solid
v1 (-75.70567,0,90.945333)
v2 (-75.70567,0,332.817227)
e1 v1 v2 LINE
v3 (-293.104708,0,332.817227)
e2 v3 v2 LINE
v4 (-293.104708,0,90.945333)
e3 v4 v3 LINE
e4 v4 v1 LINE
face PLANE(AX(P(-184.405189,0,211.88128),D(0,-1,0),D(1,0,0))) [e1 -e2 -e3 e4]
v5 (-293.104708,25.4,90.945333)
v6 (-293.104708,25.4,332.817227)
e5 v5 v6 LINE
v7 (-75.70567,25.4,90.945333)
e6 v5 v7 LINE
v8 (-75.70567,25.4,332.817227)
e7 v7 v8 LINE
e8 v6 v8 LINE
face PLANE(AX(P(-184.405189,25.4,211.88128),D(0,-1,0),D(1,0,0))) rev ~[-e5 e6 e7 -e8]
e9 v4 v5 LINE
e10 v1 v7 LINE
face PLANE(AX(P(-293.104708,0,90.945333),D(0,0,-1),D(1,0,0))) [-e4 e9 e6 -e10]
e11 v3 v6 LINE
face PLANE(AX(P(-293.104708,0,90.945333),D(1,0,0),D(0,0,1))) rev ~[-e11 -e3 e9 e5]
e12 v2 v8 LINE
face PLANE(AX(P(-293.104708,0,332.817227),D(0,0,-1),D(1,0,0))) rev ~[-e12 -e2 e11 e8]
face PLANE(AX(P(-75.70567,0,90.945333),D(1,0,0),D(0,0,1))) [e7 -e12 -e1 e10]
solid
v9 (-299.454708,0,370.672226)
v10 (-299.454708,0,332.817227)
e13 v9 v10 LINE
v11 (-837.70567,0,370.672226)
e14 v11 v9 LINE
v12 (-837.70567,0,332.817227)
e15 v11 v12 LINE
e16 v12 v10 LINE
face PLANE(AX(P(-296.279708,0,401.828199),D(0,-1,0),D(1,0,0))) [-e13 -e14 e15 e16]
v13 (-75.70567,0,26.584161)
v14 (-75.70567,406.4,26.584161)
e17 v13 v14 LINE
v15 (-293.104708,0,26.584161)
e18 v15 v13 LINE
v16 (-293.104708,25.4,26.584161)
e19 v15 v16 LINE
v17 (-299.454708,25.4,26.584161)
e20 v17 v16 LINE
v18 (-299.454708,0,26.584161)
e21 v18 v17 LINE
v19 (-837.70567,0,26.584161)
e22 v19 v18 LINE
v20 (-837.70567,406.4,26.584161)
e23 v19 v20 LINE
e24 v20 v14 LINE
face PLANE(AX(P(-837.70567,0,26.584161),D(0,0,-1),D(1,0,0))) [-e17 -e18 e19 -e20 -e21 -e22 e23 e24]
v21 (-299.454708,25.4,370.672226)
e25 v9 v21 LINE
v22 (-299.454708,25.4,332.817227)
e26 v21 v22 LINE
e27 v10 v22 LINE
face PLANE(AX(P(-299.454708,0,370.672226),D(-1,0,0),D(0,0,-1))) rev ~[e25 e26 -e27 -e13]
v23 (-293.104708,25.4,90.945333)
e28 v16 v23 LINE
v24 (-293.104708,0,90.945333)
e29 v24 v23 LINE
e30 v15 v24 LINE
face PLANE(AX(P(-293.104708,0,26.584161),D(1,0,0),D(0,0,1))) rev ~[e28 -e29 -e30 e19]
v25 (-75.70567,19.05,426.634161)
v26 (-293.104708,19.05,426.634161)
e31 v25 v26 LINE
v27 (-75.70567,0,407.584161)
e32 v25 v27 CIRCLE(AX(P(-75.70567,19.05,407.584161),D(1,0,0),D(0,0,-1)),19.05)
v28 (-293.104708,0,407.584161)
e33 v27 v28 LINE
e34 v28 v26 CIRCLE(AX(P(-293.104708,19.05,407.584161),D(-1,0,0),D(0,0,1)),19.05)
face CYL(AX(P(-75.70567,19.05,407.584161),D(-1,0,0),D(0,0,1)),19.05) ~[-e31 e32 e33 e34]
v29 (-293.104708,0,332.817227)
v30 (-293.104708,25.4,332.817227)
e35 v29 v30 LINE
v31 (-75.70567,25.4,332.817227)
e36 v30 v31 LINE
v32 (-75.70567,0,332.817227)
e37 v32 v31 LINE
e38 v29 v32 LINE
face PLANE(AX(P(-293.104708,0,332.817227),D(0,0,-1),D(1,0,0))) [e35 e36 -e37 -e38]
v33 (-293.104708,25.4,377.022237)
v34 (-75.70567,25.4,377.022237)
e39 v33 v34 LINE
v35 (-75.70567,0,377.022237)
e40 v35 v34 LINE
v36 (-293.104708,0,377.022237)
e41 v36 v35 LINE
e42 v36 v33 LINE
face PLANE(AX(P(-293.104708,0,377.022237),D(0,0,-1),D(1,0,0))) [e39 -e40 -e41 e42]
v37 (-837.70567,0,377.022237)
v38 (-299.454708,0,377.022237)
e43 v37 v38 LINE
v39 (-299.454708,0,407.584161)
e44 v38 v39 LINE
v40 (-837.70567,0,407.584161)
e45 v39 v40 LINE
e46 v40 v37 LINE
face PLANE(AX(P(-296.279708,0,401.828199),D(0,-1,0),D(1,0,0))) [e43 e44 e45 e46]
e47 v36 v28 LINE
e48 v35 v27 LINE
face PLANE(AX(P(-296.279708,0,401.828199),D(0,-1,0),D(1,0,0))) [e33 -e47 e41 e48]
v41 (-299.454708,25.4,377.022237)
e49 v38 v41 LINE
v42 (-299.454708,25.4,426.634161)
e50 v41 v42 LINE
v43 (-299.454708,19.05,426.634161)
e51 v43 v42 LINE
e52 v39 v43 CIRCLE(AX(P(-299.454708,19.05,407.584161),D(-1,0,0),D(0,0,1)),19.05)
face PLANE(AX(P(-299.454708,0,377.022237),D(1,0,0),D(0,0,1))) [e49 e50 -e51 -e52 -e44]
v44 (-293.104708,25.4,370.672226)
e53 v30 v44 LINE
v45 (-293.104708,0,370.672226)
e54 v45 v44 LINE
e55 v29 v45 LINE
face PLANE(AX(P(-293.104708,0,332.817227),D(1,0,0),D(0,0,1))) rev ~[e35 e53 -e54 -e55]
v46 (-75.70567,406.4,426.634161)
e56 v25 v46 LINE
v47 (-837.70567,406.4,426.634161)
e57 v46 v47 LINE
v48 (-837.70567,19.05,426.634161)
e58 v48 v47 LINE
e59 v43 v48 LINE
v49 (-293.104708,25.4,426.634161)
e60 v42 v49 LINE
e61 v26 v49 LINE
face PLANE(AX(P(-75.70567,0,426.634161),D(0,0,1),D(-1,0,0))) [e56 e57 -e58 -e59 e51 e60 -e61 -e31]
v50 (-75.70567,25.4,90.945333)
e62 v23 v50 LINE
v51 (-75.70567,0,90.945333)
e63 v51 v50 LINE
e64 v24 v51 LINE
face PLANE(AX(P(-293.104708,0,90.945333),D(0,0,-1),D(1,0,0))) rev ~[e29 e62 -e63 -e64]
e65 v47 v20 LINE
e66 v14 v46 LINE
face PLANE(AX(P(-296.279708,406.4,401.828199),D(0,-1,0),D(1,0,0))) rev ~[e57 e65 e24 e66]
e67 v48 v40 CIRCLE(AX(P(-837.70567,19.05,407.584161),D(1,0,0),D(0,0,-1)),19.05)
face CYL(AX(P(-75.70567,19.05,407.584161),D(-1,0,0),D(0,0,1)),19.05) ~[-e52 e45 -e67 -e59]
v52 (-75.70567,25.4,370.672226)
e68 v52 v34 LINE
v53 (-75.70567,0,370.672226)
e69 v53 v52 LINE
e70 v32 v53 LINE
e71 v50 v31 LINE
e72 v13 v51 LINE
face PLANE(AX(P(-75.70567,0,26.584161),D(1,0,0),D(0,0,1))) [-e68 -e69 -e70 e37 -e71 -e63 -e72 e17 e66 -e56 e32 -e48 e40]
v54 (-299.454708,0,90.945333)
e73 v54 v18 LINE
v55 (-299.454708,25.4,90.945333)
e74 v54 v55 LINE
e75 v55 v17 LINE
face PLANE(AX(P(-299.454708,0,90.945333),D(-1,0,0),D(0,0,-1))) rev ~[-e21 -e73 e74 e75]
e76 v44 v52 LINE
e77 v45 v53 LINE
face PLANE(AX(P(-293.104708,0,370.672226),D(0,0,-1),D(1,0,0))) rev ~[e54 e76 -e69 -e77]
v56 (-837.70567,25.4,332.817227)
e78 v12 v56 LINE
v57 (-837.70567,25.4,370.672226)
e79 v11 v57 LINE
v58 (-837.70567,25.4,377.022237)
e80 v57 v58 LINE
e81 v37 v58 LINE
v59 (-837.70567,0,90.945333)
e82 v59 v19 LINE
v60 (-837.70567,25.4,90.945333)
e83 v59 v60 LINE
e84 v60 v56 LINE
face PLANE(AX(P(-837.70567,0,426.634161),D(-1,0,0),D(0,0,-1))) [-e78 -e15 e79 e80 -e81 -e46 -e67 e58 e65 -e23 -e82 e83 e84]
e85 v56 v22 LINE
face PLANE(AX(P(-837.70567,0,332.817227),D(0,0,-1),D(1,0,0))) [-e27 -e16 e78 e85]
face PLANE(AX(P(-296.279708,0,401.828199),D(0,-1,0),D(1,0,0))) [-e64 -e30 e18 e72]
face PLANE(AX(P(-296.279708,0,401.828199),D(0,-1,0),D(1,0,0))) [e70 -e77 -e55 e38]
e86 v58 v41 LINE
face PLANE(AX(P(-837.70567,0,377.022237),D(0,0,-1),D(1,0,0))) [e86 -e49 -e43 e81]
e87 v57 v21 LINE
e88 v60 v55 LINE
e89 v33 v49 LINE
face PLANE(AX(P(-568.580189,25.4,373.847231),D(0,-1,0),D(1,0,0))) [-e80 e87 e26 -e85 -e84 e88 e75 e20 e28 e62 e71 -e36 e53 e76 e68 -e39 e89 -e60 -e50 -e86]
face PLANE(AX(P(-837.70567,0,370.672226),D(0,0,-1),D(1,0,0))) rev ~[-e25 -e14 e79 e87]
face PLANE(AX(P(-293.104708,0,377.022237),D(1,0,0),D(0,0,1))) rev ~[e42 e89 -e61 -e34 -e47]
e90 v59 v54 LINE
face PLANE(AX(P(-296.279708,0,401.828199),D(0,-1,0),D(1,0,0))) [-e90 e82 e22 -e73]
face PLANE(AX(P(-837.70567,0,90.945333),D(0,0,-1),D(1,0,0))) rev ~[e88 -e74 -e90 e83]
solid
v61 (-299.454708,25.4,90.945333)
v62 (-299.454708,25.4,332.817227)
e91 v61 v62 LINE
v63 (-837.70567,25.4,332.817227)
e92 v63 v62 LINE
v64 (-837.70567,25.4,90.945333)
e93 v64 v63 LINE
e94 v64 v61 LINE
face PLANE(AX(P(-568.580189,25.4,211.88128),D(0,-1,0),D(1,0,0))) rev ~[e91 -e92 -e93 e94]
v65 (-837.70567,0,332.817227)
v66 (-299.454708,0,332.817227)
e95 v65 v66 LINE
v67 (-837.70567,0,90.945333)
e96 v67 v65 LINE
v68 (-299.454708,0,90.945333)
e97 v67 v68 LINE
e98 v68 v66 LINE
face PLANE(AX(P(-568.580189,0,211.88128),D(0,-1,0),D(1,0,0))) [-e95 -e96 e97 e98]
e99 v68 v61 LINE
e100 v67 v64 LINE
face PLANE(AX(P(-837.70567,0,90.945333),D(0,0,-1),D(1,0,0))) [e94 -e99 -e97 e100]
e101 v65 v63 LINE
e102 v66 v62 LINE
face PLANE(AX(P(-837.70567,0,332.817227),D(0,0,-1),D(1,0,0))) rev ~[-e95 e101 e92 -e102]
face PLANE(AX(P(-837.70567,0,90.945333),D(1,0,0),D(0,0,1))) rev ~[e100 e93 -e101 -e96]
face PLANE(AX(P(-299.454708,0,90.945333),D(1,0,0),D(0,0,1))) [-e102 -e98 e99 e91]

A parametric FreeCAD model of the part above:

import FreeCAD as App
import Part
import Sketcher
Q = App.Units.Quantity


def edges_at(feature, points):
    """Names of the edges that pass closest to the given points."""
    edges = feature.Shape.Edges
    near = lambda p: min(range(len(edges)), key=lambda i: edges[i].distToShape(Part.Vertex(*p))[0])
    return sorted({f"Edge{near(p) + 1}" for p in points})


def add_polygon(sketch, points):
    """Adds a closed chain of lines whose ends are joined by coincident constraints."""
    first, n = sketch.GeometryCount, len(points)
    for a, b in zip(points, points[1:] + points[:1]):
        sketch.addGeometry(Part.LineSegment(App.Vector(*a, 0), App.Vector(*b, 0)), False)
    for i in range(n):
        sketch.addConstraint(Sketcher.Constraint("Coincident", first + i, 2, first + (i + 1) % n, 1))

doc = App.newDocument("Part")
params = doc.addObject("Spreadsheet::Sheet", "Params")
for row, (alias, value) in enumerate([
    ("sketch1_width", "30 in"),
    ("sketch1_height", "15.75 in"),
    ("pad1_length", "16 in"),
    ("fillet_radius", "0.75 in"),
    ("sketch2_width", "0.25 in"),
    ("pocket1_length", "1 in"),
    ("pad2_length", "1 in"),
    ("pad3_length", "1 in"),
], start=1):
    params.set(f"A{row}", alias)
    params.set(f"B{row}", "=" + value)
    params.setAlias(f"B{row}", alias)

body = doc.addObject("PartDesign::Body", "Body")

# Sketch on XZ plane
sketch1 = doc.addObject("Sketcher::SketchObject", "Sketch")
body.addObject(sketch1)
sketch1.AttachmentSupport = (doc.XZ_Plane, [""])
sketch1.MapMode = "FlatFace"
add_polygon(sketch1, [(-837.70567, 426.634161), (-837.70567, 26.584161), (-75.70567, 26.584161), (-75.70567, 426.634161)])  # lines 0-3
sketch1.addConstraint([
    Sketcher.Constraint("Vertical", 0),
    Sketcher.Constraint("Horizontal", 1),
    Sketcher.Constraint("Vertical", 2),
    Sketcher.Constraint("Horizontal", 3),
    Sketcher.Constraint("DistanceX", 1, 1, 1, 2, Q("30 in")),
    Sketcher.Constraint("DistanceY", 0, 2, 0, 1, Q("15.75 in")),
    Sketcher.Constraint("DistanceX", 0, 2, -1, 1, 837.70567),
    Sketcher.Constraint("DistanceY", -1, 1, 0, 2, 26.584161),
])
sketch1.setExpression("Constraints[8]", "Params.sketch1_width")
sketch1.setExpression("Constraints[9]", "Params.sketch1_height")
pad1 = doc.addObject("PartDesign::Pad", "Pad")
body.addObject(pad1)
pad1.Profile = sketch1
pad1.setExpression("Length", "Params.pad1_length")
pad1.Reversed = True
doc.recompute()

fillet = doc.addObject("PartDesign::Fillet", "Fillet")
body.addObject(fillet)
fillet.Base = (pad1, edges_at(pad1, [(-456.706, 0, 426.634)]))
fillet.setExpression("Radius", "Params.fillet_radius")

# Sketch on XZ plane
sketch2 = doc.addObject("Sketcher::SketchObject", "Sketch001")
body.addObject(sketch2)
sketch2.AttachmentSupport = (doc.XZ_Plane, [""])
sketch2.MapMode = "FlatFace"
add_polygon(sketch2, [(-837.70567, 377.022237), (-837.70567, 370.672226), (-299.454708, 370.672226), (-299.454708, 332.817227), (-837.70567, 332.817227), (-837.70567, 90.945333), (-299.454708, 90.945333), (-299.454708, 26.584161), (-293.104708, 26.584161), (-293.104708, 90.945333), (-75.70567, 90.945333), (-75.70567, 332.817227), (-293.104708, 332.817227), (-293.104708, 370.672226), (-75.70567, 370.672226), (-75.70567, 377.022237), (-293.104708, 377.022237), (-293.104708, 426.634161), (-299.454708, 426.634161), (-299.454708, 377.022237)])  # lines 0-19
sketch2.addConstraint([
    Sketcher.Constraint("Vertical", 0),
    Sketcher.Constraint("Horizontal", 1),
    Sketcher.Constraint("Vertical", 2),
    Sketcher.Constraint("Horizontal", 3),
    Sketcher.Constraint("Vertical", 4),
    Sketcher.Constraint("Horizontal", 5),
    Sketcher.Constraint("Vertical", 6),
    Sketcher.Constraint("Horizontal", 7),
    Sketcher.Constraint("Vertical", 8),
    Sketcher.Constraint("Horizontal", 9),
    Sketcher.Constraint("Vertical", 10),
    Sketcher.Constraint("Horizontal", 11),
    Sketcher.Constraint("Vertical", 12),
    Sketcher.Constraint("Horizontal", 13),
    Sketcher.Constraint("Vertical", 14),
    Sketcher.Constraint("Horizontal", 15),
    Sketcher.Constraint("Vertical", 16),
    Sketcher.Constraint("Horizontal", 17),
    Sketcher.Constraint("Vertical", 18),
    Sketcher.Constraint("Horizontal", 19),
    Sketcher.Constraint("Horizontal", 5, 2, 8, 2),
    Sketcher.Constraint("Horizontal", 3, 2, 10, 2),
    Sketcher.Constraint("Horizontal", 1, 2, 12, 2),
    Sketcher.Constraint("Horizontal", 15, 2, 18, 2),
    Sketcher.Constraint("Vertical", 0, 2, 3, 2),
    Sketcher.Constraint("Vertical", 2, 2, 5, 2),
    Sketcher.Constraint("Vertical", 8, 2, 11, 2),
    Sketcher.Constraint("Vertical", 10, 2, 13, 2),
    Sketcher.Constraint("Vertical", 12, 2, 15, 2),
    Sketcher.Constraint("Vertical", 6, 2, 17, 2),
    Sketcher.Constraint("DistanceX", 7, 1, 7, 2, Q("0.25 in")),
    Sketcher.Constraint("DistanceY", 2, 2, 2, 1, 37.854999),
    Sketcher.Constraint("DistanceX", 1, 1, 1, 2, 538.250962),
    Sketcher.Constraint("DistanceX", 9, 1, 9, 2, 217.399038),
    Sketcher.Constraint("DistanceY", 0, 2, 0, 1, 6.350011),
    Sketcher.Constraint("DistanceY", 6, 2, 6, 1, 64.361172),
    Sketcher.Constraint("DistanceY", 4, 2, 4, 1, 241.871893),
    Sketcher.Constraint("DistanceY", 16, 1, 16, 2, 49.611925),
    Sketcher.Constraint("DistanceX", 0, 2, -1, 1, 837.70567),
    Sketcher.Constraint("DistanceY", -1, 1, 6, 2, 26.584161),
])
sketch2.setExpression("Constraints[50]", "Params.sketch2_width")
pocket1 = doc.addObject("PartDesign::Pocket", "Pocket")
body.addObject(pocket1)
pocket1.Profile = sketch2
pocket1.setExpression("Length", "Params.pocket1_length")
body2 = doc.addObject("PartDesign::Body", "Body001")

# Sketch on XZ plane
sketch3 = doc.addObject("Sketcher::SketchObject", "Sketch002")
body2.addObject(sketch3)
sketch3.AttachmentSupport = (doc.getObject("XZ_Plane001"), [""])
sketch3.MapMode = "FlatFace"
add_polygon(sketch3, [(-837.70567, 332.817227), (-837.70567, 90.945333), (-299.454708, 90.945333), (-299.454708, 332.817227)])  # lines 0-3
sketch3.addConstraint([
    Sketcher.Constraint("Vertical", 0),
    Sketcher.Constraint("Horizontal", 1),
    Sketcher.Constraint("Vertical", 2),
    Sketcher.Constraint("Horizontal", 3),
    Sketcher.Constraint("DistanceX", 1, 1, 1, 2, 538.250962),
    Sketcher.Constraint("DistanceY", 0, 2, 0, 1, 241.871893),
    Sketcher.Constraint("DistanceX", 0, 2, -1, 1, 837.70567),
    Sketcher.Constraint("DistanceY", -1, 1, 0, 2, 90.945333),
])
pad2 = doc.addObject("PartDesign::Pad", "Pad001")
body2.addObject(pad2)
pad2.Profile = sketch3
pad2.setExpression("Length", "Params.pad2_length")
pad2.Reversed = True
body3 = doc.addObject("PartDesign::Body", "Body002")

# Sketch on XZ plane
sketch4 = doc.addObject("Sketcher::SketchObject", "Sketch003")
body3.addObject(sketch4)
sketch4.AttachmentSupport = (doc.getObject("XZ_Plane002"), [""])
sketch4.MapMode = "FlatFace"
add_polygon(sketch4, [(-293.104708, 332.817227), (-293.104708, 90.945333), (-75.70567, 90.945333), (-75.70567, 332.817227)])  # lines 0-3
sketch4.addConstraint([
    Sketcher.Constraint("Vertical", 0),
    Sketcher.Constraint("Horizontal", 1),
    Sketcher.Constraint("Vertical", 2),
    Sketcher.Constraint("Horizontal", 3),
    Sketcher.Constraint("DistanceX", 1, 1, 1, 2, 217.399038),
    Sketcher.Constraint("DistanceY", 0, 2, 0, 1, 241.871893),
    Sketcher.Constraint("DistanceX", 0, 2, -1, 1, 293.104708),
    Sketcher.Constraint("DistanceY", -1, 1, 0, 2, 90.945333),
])
pad3 = doc.addObject("PartDesign::Pad", "Pad002")
body3.addObject(pad3)
pad3.Profile = sketch4
pad3.setExpression("Length", "Params.pad3_length")
pad3.Reversed = True

doc.recompute()
